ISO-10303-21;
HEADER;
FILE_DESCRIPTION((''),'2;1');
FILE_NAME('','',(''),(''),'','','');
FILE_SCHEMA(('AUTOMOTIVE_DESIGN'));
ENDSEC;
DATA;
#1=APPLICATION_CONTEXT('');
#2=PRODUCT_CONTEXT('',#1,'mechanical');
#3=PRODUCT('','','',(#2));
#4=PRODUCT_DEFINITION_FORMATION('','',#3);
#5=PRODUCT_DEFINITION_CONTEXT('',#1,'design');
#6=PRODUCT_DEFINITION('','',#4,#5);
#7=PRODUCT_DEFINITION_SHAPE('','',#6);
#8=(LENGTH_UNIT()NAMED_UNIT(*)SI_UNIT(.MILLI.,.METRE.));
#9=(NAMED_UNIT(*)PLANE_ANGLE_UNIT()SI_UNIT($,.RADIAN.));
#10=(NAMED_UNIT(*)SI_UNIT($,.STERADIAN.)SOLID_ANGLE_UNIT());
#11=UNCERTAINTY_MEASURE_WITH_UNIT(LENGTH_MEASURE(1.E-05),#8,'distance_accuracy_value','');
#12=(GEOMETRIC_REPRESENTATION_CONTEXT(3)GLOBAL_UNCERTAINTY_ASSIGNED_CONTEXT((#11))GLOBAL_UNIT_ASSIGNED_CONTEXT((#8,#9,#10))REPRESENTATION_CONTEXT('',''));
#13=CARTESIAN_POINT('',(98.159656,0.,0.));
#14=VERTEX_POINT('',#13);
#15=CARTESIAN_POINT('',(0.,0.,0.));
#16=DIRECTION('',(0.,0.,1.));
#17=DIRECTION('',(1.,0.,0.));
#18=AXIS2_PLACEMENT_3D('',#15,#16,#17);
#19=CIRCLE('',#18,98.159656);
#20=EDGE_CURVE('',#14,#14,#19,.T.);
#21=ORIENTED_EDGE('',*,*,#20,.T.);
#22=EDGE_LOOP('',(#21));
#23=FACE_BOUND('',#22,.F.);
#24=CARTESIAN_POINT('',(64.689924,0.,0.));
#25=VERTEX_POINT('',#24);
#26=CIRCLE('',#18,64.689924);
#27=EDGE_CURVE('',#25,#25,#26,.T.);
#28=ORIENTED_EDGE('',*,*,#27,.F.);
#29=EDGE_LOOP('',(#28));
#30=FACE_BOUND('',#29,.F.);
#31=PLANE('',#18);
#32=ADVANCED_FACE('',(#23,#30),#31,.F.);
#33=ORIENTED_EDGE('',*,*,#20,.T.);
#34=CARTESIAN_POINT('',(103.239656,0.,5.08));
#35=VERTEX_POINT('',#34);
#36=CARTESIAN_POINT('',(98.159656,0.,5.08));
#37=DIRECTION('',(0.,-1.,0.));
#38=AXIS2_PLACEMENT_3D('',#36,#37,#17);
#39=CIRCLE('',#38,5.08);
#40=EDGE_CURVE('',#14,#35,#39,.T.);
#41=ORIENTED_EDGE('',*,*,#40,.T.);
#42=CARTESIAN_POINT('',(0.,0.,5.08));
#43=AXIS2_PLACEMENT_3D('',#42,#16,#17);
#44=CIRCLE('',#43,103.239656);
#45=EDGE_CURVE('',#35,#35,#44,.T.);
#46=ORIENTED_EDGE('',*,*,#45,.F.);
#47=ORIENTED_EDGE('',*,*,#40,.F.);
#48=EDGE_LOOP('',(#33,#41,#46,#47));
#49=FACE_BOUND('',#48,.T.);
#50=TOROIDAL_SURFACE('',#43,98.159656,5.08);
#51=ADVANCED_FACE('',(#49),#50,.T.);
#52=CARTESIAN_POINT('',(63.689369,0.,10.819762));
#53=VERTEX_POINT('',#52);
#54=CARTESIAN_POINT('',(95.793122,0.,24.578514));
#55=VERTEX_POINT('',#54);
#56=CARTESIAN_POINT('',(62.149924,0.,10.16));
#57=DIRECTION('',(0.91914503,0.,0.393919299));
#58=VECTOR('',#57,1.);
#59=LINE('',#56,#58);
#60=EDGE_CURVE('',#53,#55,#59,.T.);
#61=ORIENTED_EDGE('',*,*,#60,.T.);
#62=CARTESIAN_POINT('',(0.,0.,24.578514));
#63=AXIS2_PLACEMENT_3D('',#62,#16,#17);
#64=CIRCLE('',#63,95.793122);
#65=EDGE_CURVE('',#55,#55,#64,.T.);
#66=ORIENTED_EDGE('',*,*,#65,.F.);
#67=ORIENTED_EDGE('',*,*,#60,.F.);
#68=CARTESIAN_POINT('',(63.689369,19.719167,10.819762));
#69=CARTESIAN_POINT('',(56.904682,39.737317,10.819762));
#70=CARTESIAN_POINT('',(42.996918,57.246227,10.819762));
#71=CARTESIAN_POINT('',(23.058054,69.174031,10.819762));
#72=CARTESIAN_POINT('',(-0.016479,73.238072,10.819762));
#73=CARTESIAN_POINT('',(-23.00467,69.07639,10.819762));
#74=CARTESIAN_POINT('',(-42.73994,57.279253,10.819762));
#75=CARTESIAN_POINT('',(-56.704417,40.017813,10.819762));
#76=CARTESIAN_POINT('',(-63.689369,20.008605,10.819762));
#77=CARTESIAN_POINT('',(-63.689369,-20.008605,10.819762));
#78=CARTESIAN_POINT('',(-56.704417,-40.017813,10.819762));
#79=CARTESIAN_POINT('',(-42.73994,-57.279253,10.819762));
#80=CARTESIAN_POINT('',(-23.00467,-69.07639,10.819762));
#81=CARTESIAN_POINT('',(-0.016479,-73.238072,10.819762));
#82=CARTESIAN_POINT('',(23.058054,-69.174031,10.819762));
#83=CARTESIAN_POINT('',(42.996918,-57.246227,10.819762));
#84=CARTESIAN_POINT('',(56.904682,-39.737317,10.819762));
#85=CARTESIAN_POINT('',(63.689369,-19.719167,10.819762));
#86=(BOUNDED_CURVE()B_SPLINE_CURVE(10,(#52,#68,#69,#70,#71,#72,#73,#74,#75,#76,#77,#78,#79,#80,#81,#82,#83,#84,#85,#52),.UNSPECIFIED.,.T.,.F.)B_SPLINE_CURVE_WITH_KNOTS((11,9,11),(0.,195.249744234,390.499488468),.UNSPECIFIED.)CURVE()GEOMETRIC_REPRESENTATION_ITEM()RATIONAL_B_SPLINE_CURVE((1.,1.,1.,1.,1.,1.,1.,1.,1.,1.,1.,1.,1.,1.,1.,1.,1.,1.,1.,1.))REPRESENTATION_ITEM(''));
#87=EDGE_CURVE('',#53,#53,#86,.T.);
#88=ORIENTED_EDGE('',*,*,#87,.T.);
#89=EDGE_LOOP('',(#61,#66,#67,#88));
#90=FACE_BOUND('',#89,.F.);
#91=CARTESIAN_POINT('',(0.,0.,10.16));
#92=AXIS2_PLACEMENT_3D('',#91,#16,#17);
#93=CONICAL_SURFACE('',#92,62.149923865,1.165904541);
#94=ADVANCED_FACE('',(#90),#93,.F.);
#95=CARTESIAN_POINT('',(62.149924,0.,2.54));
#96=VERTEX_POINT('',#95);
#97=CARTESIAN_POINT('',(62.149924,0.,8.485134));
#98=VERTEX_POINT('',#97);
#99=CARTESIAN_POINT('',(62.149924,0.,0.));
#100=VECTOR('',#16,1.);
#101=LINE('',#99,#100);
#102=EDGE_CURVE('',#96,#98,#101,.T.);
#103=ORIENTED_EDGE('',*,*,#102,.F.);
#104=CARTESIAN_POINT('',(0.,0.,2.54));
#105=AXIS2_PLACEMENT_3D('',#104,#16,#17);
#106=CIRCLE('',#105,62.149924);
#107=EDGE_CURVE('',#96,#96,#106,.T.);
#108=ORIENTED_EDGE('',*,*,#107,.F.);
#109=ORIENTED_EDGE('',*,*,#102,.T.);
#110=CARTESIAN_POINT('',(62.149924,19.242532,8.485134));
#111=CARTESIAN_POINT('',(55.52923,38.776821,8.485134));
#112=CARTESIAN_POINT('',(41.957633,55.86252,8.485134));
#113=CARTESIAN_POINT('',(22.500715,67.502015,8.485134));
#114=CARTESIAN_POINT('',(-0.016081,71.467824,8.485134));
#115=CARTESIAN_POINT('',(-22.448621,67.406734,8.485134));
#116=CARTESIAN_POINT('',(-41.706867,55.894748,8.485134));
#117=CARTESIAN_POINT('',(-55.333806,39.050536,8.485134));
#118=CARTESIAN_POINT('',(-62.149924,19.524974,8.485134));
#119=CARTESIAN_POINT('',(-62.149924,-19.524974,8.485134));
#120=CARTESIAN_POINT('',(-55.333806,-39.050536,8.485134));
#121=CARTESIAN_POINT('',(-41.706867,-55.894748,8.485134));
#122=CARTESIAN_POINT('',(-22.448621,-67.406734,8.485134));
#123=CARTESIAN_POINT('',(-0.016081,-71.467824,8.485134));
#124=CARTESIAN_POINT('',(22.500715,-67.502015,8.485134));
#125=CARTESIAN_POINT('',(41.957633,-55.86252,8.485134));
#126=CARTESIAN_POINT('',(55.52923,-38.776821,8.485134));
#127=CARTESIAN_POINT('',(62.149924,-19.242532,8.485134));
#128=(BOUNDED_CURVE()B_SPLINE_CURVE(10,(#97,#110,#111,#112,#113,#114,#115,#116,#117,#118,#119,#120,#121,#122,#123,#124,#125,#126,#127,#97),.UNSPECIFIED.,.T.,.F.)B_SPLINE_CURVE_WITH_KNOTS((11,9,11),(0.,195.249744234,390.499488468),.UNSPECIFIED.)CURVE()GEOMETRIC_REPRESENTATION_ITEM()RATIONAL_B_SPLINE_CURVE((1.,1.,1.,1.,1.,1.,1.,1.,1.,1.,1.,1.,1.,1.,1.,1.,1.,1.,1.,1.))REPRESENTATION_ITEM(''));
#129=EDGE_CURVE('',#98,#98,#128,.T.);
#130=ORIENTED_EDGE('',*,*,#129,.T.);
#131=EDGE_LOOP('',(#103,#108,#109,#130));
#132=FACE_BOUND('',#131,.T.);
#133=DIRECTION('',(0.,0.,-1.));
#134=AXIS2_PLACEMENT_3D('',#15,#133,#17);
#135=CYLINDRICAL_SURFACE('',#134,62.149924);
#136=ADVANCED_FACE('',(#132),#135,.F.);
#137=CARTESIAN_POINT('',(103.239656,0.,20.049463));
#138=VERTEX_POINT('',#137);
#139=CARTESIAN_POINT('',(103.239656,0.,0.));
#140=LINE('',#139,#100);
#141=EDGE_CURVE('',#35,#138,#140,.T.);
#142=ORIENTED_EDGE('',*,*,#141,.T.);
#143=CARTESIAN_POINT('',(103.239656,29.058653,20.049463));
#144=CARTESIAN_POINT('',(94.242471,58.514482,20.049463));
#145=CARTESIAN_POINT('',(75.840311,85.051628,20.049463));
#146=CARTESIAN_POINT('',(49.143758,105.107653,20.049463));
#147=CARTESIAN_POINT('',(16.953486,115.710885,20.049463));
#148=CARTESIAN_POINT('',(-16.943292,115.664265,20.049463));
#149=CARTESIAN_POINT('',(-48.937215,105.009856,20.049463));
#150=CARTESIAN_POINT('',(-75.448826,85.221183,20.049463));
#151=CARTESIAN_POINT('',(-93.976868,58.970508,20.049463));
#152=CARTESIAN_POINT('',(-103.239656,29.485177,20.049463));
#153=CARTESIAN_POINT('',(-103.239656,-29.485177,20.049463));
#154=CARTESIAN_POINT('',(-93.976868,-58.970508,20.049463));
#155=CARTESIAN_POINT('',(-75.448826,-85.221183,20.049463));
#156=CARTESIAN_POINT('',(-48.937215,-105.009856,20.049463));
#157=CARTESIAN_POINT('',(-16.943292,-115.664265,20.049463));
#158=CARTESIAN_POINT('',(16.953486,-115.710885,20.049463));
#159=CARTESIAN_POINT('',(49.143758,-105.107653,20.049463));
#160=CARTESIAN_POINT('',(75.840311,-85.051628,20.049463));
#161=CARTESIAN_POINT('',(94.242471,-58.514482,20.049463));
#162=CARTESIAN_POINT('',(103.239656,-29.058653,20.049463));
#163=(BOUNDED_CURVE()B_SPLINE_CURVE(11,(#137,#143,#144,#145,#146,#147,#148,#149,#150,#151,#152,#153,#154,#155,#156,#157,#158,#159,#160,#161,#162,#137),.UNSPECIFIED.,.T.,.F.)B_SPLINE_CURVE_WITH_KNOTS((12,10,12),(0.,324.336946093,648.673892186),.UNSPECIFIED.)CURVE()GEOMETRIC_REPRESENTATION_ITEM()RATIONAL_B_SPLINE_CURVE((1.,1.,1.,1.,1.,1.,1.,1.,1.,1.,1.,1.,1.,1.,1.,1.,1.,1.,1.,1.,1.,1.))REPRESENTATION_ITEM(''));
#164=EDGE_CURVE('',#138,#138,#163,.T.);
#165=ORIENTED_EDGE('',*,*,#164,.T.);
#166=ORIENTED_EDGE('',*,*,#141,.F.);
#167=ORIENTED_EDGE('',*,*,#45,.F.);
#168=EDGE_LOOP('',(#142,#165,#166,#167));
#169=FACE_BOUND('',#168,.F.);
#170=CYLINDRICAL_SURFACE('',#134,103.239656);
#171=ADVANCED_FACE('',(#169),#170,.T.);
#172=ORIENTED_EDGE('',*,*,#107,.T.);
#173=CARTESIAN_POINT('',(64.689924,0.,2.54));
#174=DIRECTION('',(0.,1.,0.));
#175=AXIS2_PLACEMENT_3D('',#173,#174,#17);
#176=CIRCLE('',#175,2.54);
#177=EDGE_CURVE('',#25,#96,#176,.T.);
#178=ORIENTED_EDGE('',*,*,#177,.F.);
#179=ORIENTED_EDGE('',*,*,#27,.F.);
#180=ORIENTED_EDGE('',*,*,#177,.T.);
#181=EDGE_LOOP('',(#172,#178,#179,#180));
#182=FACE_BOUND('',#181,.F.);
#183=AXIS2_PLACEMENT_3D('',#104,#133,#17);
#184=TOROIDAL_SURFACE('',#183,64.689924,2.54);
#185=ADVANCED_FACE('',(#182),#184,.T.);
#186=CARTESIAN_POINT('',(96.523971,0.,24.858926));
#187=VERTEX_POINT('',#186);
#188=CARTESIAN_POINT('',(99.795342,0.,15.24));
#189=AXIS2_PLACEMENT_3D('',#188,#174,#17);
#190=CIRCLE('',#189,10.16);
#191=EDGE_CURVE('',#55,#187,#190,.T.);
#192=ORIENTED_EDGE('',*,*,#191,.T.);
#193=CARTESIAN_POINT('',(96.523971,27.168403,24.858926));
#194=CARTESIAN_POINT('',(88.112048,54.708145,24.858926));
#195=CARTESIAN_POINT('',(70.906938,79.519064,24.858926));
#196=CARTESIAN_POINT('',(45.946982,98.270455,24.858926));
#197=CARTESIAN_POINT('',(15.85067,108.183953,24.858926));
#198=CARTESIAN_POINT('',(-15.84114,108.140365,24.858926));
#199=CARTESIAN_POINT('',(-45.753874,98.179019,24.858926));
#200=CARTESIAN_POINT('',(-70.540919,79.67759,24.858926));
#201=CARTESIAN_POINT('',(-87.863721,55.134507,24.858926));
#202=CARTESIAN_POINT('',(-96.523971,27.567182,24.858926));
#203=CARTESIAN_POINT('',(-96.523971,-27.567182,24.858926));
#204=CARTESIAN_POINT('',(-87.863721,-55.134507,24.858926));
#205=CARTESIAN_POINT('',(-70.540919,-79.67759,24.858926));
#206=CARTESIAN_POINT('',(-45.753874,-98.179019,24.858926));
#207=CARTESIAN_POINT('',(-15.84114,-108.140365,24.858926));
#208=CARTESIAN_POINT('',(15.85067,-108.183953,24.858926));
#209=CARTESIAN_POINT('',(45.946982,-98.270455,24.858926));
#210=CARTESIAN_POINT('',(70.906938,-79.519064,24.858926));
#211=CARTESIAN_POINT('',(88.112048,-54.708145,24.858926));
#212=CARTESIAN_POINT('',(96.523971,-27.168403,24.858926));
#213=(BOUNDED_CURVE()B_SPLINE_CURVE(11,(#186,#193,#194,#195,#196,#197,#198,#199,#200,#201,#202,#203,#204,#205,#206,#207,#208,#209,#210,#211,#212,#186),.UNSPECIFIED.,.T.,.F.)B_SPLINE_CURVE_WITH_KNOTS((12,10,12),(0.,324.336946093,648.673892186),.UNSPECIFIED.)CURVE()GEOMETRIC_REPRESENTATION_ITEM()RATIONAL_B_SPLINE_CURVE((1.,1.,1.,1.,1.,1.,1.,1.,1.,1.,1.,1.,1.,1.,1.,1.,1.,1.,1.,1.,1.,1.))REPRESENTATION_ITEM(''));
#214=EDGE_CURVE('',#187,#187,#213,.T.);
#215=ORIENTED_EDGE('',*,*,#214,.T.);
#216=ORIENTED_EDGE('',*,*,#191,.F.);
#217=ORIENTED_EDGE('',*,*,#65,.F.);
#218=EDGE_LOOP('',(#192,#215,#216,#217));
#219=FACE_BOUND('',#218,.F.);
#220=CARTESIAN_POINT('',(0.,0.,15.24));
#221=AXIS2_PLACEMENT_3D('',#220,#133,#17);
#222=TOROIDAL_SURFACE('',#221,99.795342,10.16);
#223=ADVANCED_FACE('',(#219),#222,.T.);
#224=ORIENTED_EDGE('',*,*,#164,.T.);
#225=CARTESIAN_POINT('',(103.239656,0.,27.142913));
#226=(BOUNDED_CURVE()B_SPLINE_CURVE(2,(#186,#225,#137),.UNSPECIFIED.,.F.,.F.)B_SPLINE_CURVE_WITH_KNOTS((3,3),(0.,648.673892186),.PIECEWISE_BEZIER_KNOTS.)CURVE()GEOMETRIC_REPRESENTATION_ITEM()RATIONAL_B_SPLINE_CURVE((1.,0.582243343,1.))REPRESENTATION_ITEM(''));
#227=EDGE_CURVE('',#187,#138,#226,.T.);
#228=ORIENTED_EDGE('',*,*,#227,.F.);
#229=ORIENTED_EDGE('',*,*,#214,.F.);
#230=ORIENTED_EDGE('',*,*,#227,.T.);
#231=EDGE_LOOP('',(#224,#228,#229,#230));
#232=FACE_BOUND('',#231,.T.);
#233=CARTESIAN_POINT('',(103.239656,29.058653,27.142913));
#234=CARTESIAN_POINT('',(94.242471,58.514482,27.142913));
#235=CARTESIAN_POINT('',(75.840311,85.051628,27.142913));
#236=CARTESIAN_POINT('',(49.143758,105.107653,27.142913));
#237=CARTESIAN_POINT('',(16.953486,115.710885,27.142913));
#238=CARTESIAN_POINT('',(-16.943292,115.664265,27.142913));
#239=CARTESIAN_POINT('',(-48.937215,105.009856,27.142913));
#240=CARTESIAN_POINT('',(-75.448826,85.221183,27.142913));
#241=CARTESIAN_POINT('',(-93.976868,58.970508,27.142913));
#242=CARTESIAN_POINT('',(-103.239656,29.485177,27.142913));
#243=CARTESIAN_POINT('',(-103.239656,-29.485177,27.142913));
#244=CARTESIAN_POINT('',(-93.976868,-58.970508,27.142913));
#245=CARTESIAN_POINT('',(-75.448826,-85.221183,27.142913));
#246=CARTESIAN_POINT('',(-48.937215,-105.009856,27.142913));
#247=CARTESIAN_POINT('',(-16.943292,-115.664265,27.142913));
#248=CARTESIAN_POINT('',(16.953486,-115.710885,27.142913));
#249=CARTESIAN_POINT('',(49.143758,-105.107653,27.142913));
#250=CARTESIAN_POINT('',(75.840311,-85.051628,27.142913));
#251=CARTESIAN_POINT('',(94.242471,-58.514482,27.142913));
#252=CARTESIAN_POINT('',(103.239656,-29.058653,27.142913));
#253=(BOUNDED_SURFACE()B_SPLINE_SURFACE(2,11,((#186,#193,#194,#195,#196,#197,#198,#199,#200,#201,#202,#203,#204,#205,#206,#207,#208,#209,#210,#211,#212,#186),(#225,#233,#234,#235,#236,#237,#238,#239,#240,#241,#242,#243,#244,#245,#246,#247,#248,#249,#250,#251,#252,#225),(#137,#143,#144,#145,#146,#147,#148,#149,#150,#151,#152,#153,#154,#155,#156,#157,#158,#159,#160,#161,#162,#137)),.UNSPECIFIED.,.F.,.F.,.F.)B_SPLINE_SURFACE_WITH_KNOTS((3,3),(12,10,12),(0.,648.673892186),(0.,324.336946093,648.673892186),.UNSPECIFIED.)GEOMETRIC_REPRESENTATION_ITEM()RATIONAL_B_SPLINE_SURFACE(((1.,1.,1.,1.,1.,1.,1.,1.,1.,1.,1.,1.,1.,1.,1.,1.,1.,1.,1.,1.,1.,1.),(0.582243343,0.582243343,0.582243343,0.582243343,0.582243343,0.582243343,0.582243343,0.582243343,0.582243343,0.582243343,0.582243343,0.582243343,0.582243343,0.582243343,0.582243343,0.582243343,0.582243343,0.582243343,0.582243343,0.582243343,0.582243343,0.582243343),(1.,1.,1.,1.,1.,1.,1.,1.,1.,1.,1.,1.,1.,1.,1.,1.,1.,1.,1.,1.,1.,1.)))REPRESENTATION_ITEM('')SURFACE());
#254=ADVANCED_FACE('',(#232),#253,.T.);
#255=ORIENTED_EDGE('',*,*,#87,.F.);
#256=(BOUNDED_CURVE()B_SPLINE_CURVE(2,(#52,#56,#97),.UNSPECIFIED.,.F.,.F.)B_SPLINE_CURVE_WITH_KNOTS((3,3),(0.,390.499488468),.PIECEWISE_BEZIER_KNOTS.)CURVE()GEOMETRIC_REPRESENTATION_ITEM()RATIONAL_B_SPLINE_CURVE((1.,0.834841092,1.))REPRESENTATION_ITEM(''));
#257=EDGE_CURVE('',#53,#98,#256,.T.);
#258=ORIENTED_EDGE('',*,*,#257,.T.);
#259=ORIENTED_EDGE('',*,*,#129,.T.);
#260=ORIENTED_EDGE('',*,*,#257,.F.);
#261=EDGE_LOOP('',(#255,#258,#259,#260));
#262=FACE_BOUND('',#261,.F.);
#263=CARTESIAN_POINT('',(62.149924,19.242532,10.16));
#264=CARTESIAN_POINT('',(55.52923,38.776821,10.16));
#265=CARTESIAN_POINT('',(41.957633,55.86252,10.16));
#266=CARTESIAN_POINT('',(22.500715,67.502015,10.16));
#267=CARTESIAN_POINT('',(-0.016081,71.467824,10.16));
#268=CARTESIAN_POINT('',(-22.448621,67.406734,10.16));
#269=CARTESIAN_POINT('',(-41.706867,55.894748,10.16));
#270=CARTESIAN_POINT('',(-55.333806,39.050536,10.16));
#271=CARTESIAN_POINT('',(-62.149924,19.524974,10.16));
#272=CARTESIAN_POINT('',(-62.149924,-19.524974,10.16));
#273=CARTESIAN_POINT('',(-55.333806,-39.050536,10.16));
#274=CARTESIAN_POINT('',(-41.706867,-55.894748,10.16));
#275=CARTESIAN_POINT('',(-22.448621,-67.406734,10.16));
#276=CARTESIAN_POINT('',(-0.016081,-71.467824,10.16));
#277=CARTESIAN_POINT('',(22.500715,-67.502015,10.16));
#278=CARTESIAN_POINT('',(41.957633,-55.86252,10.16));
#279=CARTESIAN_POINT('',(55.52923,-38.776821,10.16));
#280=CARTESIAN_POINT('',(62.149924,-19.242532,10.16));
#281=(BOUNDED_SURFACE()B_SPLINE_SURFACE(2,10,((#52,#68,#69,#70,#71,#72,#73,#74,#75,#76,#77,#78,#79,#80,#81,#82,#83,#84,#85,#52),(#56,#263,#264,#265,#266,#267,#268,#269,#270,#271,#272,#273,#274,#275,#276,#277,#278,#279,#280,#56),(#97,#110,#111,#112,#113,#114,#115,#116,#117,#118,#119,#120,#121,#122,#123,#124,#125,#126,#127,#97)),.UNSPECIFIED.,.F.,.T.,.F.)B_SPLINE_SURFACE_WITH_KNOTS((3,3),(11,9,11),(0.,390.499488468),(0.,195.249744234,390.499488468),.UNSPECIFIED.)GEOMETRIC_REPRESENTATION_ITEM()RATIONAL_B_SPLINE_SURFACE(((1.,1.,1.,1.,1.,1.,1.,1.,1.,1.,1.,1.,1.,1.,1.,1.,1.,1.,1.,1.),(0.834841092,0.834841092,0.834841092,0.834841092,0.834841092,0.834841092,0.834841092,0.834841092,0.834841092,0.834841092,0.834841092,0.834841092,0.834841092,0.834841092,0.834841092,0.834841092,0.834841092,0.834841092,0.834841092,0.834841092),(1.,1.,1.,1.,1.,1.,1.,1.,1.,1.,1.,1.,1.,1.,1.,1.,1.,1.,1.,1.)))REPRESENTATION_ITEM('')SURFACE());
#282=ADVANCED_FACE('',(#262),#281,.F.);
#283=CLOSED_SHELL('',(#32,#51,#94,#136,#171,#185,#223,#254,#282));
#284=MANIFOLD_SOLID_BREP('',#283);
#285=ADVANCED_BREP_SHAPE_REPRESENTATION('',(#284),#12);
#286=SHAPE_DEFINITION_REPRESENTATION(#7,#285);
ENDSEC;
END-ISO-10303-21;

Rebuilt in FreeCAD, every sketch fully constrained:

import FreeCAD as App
import Part
import Sketcher
from FreeCAD import Vector
Q = App.Units.Quantity


def edges_at(feature, points):
    """Names of the edges that pass closest to the given points."""
    edges = feature.Shape.Edges
    near = lambda p: min(range(len(edges)), key=lambda i: edges[i].distToShape(Part.Vertex(*p))[0])
    return sorted({f"Edge{near(p) + 1}" for p in points})

doc = App.newDocument("Part")
body = doc.addObject("PartDesign::Body", "Body")

# Sketch on XY plane
sketch1 = doc.addObject("Sketcher::SketchObject", "Sketch")
body.addObject(sketch1)
sketch1.AttachmentSupport = (doc.XY_Plane, [""])
sketch1.MapMode = "FlatFace"
sketch1.addGeometry(Part.Circle(Vector(0, 0, 0), Vector(0, 0, 1), 103.239656), False)
sketch1.addGeometry(Part.Circle(Vector(0, 0, 0), Vector(0, 0, 1), 62.149924), False)
sketch1.addConstraint(Sketcher.Constraint("Coincident", 0, 3, -1, 1))
sketch1.addConstraint(Sketcher.Constraint("Coincident", 1, 3, -1, 1))
sketch1.addConstraint(Sketcher.Constraint("Diameter", 0, 206.479313))
sketch1.addConstraint(Sketcher.Constraint("Diameter", 1, 124.299848))
pad1 = doc.addObject("PartDesign::Pad", "Pad")
body.addObject(pad1)
pad1.Profile = sketch1
pad1.Length = Q("1 in")
doc.recompute()

chamfer = doc.addObject("PartDesign::Chamfer", "Chamfer")
body.addObject(chamfer)
chamfer.Base = (pad1, edges_at(pad1, [(-62.15, 0, 25.4)]))
chamfer.ChamferType = "Two distances"
chamfer.Size = Q("0.6 in")
chamfer.Size2 = Q("1.4 in")
doc.recompute()

fillet = doc.addObject("PartDesign::Fillet", "Fillet")
body.addObject(fillet)
fillet.Base = (chamfer, edges_at(chamfer, [(-97.71, 0, 25.4)]))
fillet.Radius = Q("0.4 in")
doc.recompute()

fillet2 = doc.addObject("PartDesign::Fillet", "Fillet001")
body.addObject(fillet2)
fillet2.Base = (fillet, edges_at(fillet, [(-103.24, 0, 25.4)]))
fillet2.Radius = Q("0.2 in")
doc.recompute()

fillet3 = doc.addObject("PartDesign::Fillet", "Fillet002")
body.addObject(fillet3)
fillet3.Base = (fillet2, edges_at(fillet2, [(-62.15, 0, 10.16)]))
fillet3.Radius = Q("0.1 in")
doc.recompute()

fillet4 = doc.addObject("PartDesign::Fillet", "Fillet003")
body.addObject(fillet4)
fillet4.Base = (fillet3, edges_at(fillet3, [(-103.24, 0, 0)]))
fillet4.Radius = Q("0.2 in")
doc.recompute()

fillet5 = doc.addObject("PartDesign::Fillet", "Fillet004")
body.addObject(fillet5)
fillet5.Base = (fillet4, edges_at(fillet4, [(-62.15, 0, 0)]))
fillet5.Radius = Q("0.1 in")

doc.recompute()
